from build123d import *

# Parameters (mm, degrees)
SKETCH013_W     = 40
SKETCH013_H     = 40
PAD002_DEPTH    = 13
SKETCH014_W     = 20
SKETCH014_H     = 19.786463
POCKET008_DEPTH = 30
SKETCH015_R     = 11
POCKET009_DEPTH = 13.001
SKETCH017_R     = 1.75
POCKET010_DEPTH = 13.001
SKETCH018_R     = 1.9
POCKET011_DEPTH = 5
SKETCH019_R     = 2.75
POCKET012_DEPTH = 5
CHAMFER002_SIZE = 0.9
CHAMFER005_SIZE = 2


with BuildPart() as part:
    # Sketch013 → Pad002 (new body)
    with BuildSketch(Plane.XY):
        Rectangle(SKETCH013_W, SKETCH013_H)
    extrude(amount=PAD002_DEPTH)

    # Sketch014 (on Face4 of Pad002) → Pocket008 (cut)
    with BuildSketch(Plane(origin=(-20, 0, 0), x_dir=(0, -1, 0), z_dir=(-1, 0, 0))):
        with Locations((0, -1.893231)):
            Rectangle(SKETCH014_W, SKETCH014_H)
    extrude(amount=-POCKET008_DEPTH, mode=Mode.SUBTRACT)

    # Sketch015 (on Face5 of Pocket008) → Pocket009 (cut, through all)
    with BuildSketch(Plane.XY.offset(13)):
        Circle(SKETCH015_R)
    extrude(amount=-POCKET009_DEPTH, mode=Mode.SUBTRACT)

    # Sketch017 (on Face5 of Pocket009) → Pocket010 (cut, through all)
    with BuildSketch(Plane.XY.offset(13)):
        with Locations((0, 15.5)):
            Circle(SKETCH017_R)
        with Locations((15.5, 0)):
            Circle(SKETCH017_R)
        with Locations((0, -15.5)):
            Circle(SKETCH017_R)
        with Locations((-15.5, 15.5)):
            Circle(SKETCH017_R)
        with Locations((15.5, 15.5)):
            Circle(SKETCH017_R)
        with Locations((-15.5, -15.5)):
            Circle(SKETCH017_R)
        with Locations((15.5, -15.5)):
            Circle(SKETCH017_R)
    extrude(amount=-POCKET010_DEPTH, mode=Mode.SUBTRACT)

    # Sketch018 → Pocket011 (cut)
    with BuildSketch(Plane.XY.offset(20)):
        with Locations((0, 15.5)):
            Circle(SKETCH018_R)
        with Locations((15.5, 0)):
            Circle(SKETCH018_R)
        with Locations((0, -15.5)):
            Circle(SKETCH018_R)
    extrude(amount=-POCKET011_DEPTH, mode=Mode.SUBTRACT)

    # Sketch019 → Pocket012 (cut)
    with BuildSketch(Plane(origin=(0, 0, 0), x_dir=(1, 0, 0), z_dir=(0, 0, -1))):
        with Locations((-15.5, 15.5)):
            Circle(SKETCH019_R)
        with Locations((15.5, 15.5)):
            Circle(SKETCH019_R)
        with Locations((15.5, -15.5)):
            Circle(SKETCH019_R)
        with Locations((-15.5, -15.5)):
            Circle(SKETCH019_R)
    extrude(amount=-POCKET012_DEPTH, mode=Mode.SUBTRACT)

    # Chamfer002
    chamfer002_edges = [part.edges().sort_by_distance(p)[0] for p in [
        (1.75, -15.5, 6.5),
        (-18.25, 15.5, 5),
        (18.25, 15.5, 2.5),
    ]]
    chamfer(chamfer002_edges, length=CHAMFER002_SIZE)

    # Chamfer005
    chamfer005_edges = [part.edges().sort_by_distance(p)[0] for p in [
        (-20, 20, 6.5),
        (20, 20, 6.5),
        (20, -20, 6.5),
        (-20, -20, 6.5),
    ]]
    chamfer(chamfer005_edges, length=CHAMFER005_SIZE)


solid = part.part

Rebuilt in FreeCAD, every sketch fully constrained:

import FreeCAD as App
import Part
import Sketcher

V = App.Vector


def edges_at(feature, points):
    """Names of the edges that pass closest to the given points."""
    edges = feature.Shape.Edges
    near = lambda p: min(range(len(edges)), key=lambda i: edges[i].distToShape(Part.Vertex(*p))[0])
    return sorted({f"Edge{near(p) + 1}" for p in points})

doc = App.newDocument("Part")
body = doc.addObject("PartDesign::Body", "Body")

sketch1 = body.newObject("Sketcher::SketchObject", "Sketch")
sketch1.AttachmentSupport = (doc.getObject("XY_Plane"), [""])
sketch1.MapMode = "FlatFace"
sketch1.addGeometry(Part.LineSegment(V(-20, 20, 0), V(-20, -20, 0)), False)
sketch1.addGeometry(Part.LineSegment(V(-20, -20, 0), V(20, -20, 0)), False)
sketch1.addGeometry(Part.LineSegment(V(20, -20, 0), V(20, 20, 0)), False)
sketch1.addGeometry(Part.LineSegment(V(20, 20, 0), V(-20, 20, 0)), False)
sketch1.addConstraint(Sketcher.Constraint("Coincident", 0, 2, 1, 1))
sketch1.addConstraint(Sketcher.Constraint("Coincident", 1, 2, 2, 1))
sketch1.addConstraint(Sketcher.Constraint("Coincident", 2, 2, 3, 1))
sketch1.addConstraint(Sketcher.Constraint("Coincident", 3, 2, 0, 1))
sketch1.addConstraint(Sketcher.Constraint("Vertical", 0))
sketch1.addConstraint(Sketcher.Constraint("Horizontal", 1))
sketch1.addConstraint(Sketcher.Constraint("Vertical", 2))
sketch1.addConstraint(Sketcher.Constraint("Horizontal", 3))
sketch1.addConstraint(Sketcher.Constraint("Symmetric", 0, 2, 2, 2, -1, 1))
sketch1.addConstraint(Sketcher.Constraint("Equal", 3, 0))
sketch1.addConstraint(Sketcher.Constraint("DistanceX", 1, 1, 1, 2, 40.0))
pad1 = body.newObject("PartDesign::Pad", "Pad")
pad1.Profile = sketch1
pad1.Length = 13

sketch2 = body.newObject("Sketcher::SketchObject", "Sketch001")
sketch2.AttachmentSupport = (doc.getObject("YZ_Plane"), [""])
sketch2.MapMode = "FlatFace"
sketch2.AttachmentOffset = App.Placement(V(0, 0, -20), App.Rotation())
sketch2.addGeometry(Part.LineSegment(V(10, 8.000001, 0), V(10, -11.786463, 0)), False)
sketch2.addGeometry(Part.LineSegment(V(10, -11.786463, 0), V(-10, -11.786463, 0)), False)
sketch2.addGeometry(Part.LineSegment(V(-10, -11.786463, 0), V(-10, 8.000001, 0)), False)
sketch2.addGeometry(Part.LineSegment(V(-10, 8.000001, 0), V(10, 8.000001, 0)), False)
sketch2.addConstraint(Sketcher.Constraint("Coincident", 0, 2, 1, 1))
sketch2.addConstraint(Sketcher.Constraint("Coincident", 1, 2, 2, 1))
sketch2.addConstraint(Sketcher.Constraint("Coincident", 2, 2, 3, 1))
sketch2.addConstraint(Sketcher.Constraint("Coincident", 3, 2, 0, 1))
sketch2.addConstraint(Sketcher.Constraint("Vertical", 0))
sketch2.addConstraint(Sketcher.Constraint("Horizontal", 1))
sketch2.addConstraint(Sketcher.Constraint("Vertical", 2))
sketch2.addConstraint(Sketcher.Constraint("Horizontal", 3))
sketch2.addConstraint(Sketcher.Constraint("DistanceX", 1, 2, 1, 1, 20.0))
sketch2.addConstraint(Sketcher.Constraint("DistanceX", -1, 1, 0, 2, 10.0))
sketch2.addConstraint(Sketcher.Constraint("DistanceY", -1, 1, 2, 2, 8.000001))
sketch2.addConstraint(Sketcher.Constraint("DistanceY", 0, 2, 0, 1, 19.786463))
pocket1 = body.newObject("PartDesign::Pocket", "Pocket")
pocket1.Profile = sketch2
pocket1.Length = 30
pocket1.Reversed = True

sketch3 = body.newObject("Sketcher::SketchObject", "Sketch002")
sketch3.AttachmentSupport = (doc.getObject("XY_Plane"), [""])
sketch3.MapMode = "FlatFace"
sketch3.AttachmentOffset = App.Placement(V(0, 0, 13), App.Rotation())
sketch3.addGeometry(Part.Circle(V(0, 0, 0), V(0, 0, 1), 11), False)
sketch3.addConstraint(Sketcher.Constraint("Coincident", 0, 3, -1, 1))
sketch3.addConstraint(Sketcher.Constraint("Diameter", 0, 22.0))
pocket2 = body.newObject("PartDesign::Pocket", "Pocket001")
pocket2.Profile = sketch3
pocket2.Type = "ThroughAll"

sketch4 = body.newObject("Sketcher::SketchObject", "Sketch003")
sketch4.AttachmentSupport = (doc.getObject("XY_Plane"), [""])
sketch4.MapMode = "FlatFace"
sketch4.AttachmentOffset = App.Placement(V(0, 0, 13), App.Rotation())
sketch4.addGeometry(Part.Circle(V(0, 15.5, 0), V(0, 0, 1), 1.75), False)
sketch4.addGeometry(Part.Circle(V(15.5, 0, 0), V(0, 0, 1), 1.75), False)
sketch4.addGeometry(Part.Circle(V(0, -15.5, 0), V(0, 0, 1), 1.75), False)
sketch4.addGeometry(Part.Circle(V(-15.5, 15.5, 0), V(0, 0, 1), 1.75), False)
sketch4.addGeometry(Part.Circle(V(15.5, 15.5, 0), V(0, 0, 1), 1.75), False)
sketch4.addGeometry(Part.Circle(V(-15.5, -15.5, 0), V(0, 0, 1), 1.75), False)
sketch4.addGeometry(Part.Circle(V(15.5, -15.5, 0), V(0, 0, 1), 1.75), False)
sketch4.addConstraint(Sketcher.Constraint("Equal", 0, 1))
sketch4.addConstraint(Sketcher.Constraint("Equal", 1, 2))
sketch4.addConstraint(Sketcher.Constraint("Equal", 2, 3))
sketch4.addConstraint(Sketcher.Constraint("Equal", 3, 4))
sketch4.addConstraint(Sketcher.Constraint("Equal", 4, 5))
sketch4.addConstraint(Sketcher.Constraint("Equal", 5, 6))
sketch4.addConstraint(Sketcher.Constraint("Symmetric", 0, 3, 2, 3, -1, 1))
sketch4.addConstraint(Sketcher.Constraint("Symmetric", 4, 3, 5, 3, -1, 1))
sketch4.addConstraint(Sketcher.Constraint("Symmetric", 3, 3, 6, 3, -1, 1))
sketch4.addConstraint(Sketcher.Constraint("Symmetric", 3, 3, 4, 3, -2))
sketch4.addConstraint(Sketcher.Constraint("PointOnObject", 0, 3, -2))
sketch4.addConstraint(Sketcher.Constraint("PointOnObject", 1, 3, -1))
sketch4.addConstraint(Sketcher.Constraint("Horizontal", 0, 3, 3, 3))
sketch4.addConstraint(Sketcher.Constraint("Vertical", 1, 3, 4, 3))
sketch4.addConstraint(Sketcher.Constraint("Diameter", 0, 3.5))
sketch4.addConstraint(Sketcher.Constraint("DistanceY", 2, 3, 0, 3, 31.0))
sketch4.addConstraint(Sketcher.Constraint("DistanceX", 3, 3, 1, 3, 31.0))
pocket3 = body.newObject("PartDesign::Pocket", "Pocket002")
pocket3.Profile = sketch4
pocket3.Type = "ThroughAll"

sketch5 = body.newObject("Sketcher::SketchObject", "Sketch004")
sketch5.AttachmentSupport = (doc.getObject("XY_Plane"), [""])
sketch5.MapMode = "FlatFace"
sketch5.AttachmentOffset = App.Placement(V(0, 0, 20), App.Rotation())
sketch5.addGeometry(Part.Circle(V(0, 15.5, 0), V(0, 0, 1), 1.9), False)
sketch5.addGeometry(Part.Circle(V(15.5, 0, 0), V(0, 0, 1), 1.9), False)
sketch5.addGeometry(Part.Circle(V(0, -15.5, 0), V(0, 0, 1), 1.9), False)
sketch5.addConstraint(Sketcher.Constraint("Equal", 0, 1))
sketch5.addConstraint(Sketcher.Constraint("Equal", 1, 2))
sketch5.addConstraint(Sketcher.Constraint("Symmetric", 0, 3, 2, 3, -1, 1))
sketch5.addConstraint(Sketcher.Constraint("PointOnObject", 0, 3, -2))
sketch5.addConstraint(Sketcher.Constraint("PointOnObject", 1, 3, -1))
sketch5.addConstraint(Sketcher.Constraint("Diameter", 0, 3.8))
sketch5.addConstraint(Sketcher.Constraint("DistanceY", 2, 3, 0, 3, 31.0))
sketch5.addConstraint(Sketcher.Constraint("DistanceX", -1, 1, 1, 3, 15.5))
pocket4 = body.newObject("PartDesign::Pocket", "Pocket003")
pocket4.Profile = sketch5
pocket4.Length = 5

sketch6 = body.newObject("Sketcher::SketchObject", "Sketch005")
sketch6.AttachmentSupport = (doc.getObject("XY_Plane"), [""])
sketch6.MapMode = "FlatFace"
sketch6.addGeometry(Part.Circle(V(-15.5, -15.5, 0), V(0, 0, 1), 2.75), False)
sketch6.addGeometry(Part.Circle(V(15.5, -15.5, 0), V(0, 0, 1), 2.75), False)
sketch6.addGeometry(Part.Circle(V(15.5, 15.5, 0), V(0, 0, 1), 2.75), False)
sketch6.addGeometry(Part.Circle(V(-15.5, 15.5, 0), V(0, 0, 1), 2.75), False)
sketch6.addConstraint(Sketcher.Constraint("Equal", 0, 1))
sketch6.addConstraint(Sketcher.Constraint("Equal", 1, 2))
sketch6.addConstraint(Sketcher.Constraint("Equal", 2, 3))
sketch6.addConstraint(Sketcher.Constraint("Symmetric", 0, 3, 2, 3, -1, 1))
sketch6.addConstraint(Sketcher.Constraint("Symmetric", 1, 3, 3, 3, -1, 1))
sketch6.addConstraint(Sketcher.Constraint("Symmetric", 0, 3, 1, 3, -2))
sketch6.addConstraint(Sketcher.Constraint("Diameter", 0, 5.5))
sketch6.addConstraint(Sketcher.Constraint("DistanceX", 0, 3, 1, 3, 31.0))
sketch6.addConstraint(Sketcher.Constraint("DistanceY", 1, 3, 2, 3, 31.0))
pocket5 = body.newObject("PartDesign::Pocket", "Pocket004")
pocket5.Profile = sketch6
pocket5.Length = 5
pocket5.Reversed = True
doc.recompute()

chamfer = body.newObject("PartDesign::Chamfer", "Chamfer")
chamfer.Base = (pocket5, edges_at(pocket5, [(1.75, -15.5, 6.5), (-18.25, 15.5, 5), (18.25, 15.5, 2.5)]))
chamfer.Size = 0.9
doc.recompute()

chamfer2 = body.newObject("PartDesign::Chamfer", "Chamfer001")
chamfer2.Base = (chamfer, edges_at(chamfer, [
    (-20, 20, 6.5),
    (20, 20, 6.5),
    (20, -20, 6.5),
    (-20, -20, 6.5),
]))
chamfer2.Size = 2

doc.recompute()
